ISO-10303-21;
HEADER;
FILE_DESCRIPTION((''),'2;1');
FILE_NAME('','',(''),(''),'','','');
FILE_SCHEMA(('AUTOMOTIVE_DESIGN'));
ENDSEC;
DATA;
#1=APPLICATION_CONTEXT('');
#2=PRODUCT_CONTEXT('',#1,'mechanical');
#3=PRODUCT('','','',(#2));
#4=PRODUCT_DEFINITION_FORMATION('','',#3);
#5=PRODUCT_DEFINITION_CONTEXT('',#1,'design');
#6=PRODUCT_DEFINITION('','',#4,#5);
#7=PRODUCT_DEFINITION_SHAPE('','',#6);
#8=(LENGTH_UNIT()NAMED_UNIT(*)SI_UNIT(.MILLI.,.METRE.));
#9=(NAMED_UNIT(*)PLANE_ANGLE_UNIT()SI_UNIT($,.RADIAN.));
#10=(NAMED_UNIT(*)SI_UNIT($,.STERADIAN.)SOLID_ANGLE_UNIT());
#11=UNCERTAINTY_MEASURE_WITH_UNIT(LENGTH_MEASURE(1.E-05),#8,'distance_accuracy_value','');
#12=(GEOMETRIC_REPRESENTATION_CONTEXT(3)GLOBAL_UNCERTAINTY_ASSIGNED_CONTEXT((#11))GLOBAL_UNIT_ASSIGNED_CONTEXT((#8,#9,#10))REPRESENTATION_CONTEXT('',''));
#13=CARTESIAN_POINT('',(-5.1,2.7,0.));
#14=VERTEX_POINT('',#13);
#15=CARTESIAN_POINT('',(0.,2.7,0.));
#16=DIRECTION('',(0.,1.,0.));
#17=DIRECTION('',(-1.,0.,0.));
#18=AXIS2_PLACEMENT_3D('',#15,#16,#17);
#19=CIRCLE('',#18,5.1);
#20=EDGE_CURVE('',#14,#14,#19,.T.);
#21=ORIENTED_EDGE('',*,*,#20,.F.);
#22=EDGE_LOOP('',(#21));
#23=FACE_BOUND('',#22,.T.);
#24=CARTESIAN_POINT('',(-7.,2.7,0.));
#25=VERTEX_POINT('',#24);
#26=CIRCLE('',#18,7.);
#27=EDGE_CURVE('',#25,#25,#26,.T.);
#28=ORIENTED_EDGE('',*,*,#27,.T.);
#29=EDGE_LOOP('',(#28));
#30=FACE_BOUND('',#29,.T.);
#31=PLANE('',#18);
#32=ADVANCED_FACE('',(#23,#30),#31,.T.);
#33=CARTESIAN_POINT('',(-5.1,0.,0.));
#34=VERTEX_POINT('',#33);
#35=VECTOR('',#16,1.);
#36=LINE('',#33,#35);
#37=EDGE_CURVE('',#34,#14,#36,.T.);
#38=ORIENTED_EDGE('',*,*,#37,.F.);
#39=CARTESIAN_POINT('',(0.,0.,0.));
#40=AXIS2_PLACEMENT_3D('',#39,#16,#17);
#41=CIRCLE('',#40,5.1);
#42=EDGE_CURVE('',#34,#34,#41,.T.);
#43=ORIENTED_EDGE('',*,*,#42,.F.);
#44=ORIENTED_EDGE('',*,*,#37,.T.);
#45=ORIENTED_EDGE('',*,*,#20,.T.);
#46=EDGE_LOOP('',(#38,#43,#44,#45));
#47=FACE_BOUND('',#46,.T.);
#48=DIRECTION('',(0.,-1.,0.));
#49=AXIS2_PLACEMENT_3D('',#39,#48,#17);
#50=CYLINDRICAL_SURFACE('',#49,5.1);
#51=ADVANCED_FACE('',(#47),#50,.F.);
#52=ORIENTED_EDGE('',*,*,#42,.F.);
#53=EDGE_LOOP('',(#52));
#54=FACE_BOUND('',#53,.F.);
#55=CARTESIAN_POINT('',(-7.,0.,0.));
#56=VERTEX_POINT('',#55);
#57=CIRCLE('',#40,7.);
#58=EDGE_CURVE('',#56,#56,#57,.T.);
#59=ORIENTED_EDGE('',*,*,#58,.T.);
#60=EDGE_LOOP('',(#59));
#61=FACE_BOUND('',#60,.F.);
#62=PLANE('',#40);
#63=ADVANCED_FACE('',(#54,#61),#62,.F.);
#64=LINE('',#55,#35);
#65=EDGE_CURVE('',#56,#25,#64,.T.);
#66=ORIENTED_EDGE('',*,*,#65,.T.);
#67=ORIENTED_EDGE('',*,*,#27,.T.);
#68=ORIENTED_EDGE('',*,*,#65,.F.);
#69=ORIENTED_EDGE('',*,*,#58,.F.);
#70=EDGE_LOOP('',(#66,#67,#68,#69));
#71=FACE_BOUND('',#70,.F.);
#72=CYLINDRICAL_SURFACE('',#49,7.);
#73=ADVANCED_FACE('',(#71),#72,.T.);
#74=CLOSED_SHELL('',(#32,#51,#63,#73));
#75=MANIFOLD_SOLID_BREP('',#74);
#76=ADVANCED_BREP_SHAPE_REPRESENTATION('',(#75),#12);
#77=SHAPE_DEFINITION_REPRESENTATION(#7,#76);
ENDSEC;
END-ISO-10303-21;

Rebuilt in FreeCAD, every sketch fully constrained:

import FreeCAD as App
import Part
import Sketcher

V = App.Vector

doc = App.newDocument("Part")
params = doc.addObject("Spreadsheet::Sheet", "Params")
for row, (alias, value) in enumerate([
    ("sketch1_diameter", "14 mm"),
    ("sketch1_diameter2", "10.2 mm"),
    ("pad1_length", "2.7 mm"),
], start=1):
    params.set(f"A{row}", alias)
    params.set(f"B{row}", "=" + value)
    params.setAlias(f"B{row}", alias)

body = doc.addObject("PartDesign::Body", "Body")

# Sketch on XZ plane
sketch1 = body.newObject("Sketcher::SketchObject", "Sketch")
sketch1.AttachmentSupport = (doc.getObject("XZ_Plane"), [""])
sketch1.MapMode = "FlatFace"
sketch1.addGeometry([
    Part.Circle(V(0, 0, 0), V(0, 0, 1), 7),
    Part.Circle(V(0, 0, 0), V(0, 0, 1), 5),
], False)
sketch1.addConstraint([
    Sketcher.Constraint("Coincident", 0, 3, -1, 1),
    Sketcher.Constraint("Coincident", 1, 3, -1, 1),
    Sketcher.Constraint("Diameter", 0, 14.0),
    Sketcher.Constraint("Diameter", 1, 10.2),
])
sketch1.setExpression("Constraints[2]", "Params.sketch1_diameter")
sketch1.setExpression("Constraints[3]", "Params.sketch1_diameter2")
pad1 = body.newObject("PartDesign::Pad", "Pad")
pad1.Profile = sketch1
pad1.setExpression("Length", "Params.pad1_length")
pad1.Reversed = True

doc.recompute()
